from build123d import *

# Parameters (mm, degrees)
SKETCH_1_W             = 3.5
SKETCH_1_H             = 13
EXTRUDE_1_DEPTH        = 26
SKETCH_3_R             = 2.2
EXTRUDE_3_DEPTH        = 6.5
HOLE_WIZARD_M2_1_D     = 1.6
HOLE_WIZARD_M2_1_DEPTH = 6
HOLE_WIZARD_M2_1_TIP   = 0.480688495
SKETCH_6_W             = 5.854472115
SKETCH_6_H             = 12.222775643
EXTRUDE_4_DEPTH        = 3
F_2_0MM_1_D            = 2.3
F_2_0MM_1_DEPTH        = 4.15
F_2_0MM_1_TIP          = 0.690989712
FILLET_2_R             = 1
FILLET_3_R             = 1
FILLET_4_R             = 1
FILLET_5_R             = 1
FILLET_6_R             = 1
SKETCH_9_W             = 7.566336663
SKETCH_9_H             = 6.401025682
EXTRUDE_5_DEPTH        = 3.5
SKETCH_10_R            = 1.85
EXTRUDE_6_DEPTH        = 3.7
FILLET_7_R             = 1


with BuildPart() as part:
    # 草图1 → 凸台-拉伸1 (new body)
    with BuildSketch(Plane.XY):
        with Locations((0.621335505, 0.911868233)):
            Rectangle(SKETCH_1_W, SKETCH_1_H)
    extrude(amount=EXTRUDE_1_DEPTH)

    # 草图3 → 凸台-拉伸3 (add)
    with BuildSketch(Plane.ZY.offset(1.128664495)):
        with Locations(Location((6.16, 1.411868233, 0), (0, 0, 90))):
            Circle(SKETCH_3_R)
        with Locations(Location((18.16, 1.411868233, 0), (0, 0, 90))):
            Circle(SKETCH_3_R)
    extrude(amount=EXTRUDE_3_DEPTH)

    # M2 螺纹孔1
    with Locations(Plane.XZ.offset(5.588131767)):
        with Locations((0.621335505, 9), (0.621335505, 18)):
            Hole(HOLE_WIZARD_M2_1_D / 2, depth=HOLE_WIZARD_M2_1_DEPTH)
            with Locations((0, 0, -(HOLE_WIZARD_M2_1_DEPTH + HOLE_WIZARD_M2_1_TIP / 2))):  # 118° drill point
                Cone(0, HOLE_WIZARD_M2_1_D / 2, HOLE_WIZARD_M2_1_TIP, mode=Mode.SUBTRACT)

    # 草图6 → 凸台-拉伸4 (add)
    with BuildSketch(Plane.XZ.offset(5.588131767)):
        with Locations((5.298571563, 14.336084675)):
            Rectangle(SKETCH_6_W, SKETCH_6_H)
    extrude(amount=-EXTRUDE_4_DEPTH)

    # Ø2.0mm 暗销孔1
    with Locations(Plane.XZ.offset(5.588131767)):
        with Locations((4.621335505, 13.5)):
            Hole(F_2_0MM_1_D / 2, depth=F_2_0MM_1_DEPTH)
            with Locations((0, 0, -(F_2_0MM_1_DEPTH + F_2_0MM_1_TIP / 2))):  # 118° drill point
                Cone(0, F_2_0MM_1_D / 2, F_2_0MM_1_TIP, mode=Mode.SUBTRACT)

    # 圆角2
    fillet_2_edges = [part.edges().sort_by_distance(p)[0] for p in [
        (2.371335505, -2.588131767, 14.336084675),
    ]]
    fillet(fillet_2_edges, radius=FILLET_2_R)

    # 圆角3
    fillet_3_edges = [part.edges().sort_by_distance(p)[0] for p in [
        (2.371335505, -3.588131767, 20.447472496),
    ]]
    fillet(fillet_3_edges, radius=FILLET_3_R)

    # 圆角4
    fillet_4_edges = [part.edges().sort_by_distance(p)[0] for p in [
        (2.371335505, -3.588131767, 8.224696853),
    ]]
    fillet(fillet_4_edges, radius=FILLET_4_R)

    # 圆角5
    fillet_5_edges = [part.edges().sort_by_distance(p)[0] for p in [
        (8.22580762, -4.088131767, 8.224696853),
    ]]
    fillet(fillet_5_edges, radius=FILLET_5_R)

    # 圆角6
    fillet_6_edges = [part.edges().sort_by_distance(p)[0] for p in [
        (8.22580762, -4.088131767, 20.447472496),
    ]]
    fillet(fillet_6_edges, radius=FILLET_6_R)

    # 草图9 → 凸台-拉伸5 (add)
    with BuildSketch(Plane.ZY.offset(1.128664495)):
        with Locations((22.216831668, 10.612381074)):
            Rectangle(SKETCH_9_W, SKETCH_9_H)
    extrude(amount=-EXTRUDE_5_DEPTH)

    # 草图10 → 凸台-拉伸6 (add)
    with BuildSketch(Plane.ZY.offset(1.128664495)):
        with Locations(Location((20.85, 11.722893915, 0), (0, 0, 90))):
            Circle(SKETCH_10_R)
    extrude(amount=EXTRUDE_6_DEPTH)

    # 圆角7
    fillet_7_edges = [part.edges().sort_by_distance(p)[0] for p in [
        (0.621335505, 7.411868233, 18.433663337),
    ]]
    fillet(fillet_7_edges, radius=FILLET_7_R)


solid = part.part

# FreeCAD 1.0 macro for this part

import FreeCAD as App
import Part
import Sketcher
from FreeCAD import Vector


def edges_at(feature, points):
    """Names of the edges that pass closest to the given points."""
    edges = feature.Shape.Edges
    near = lambda p: min(range(len(edges)), key=lambda i: edges[i].distToShape(Part.Vertex(*p))[0])
    return sorted({f"Edge{near(p) + 1}" for p in points})

doc = App.newDocument("Part")
params = doc.addObject("Spreadsheet::Sheet", "Params")
for row, (alias, value) in enumerate([
    ("sketch1_height", "13 mm"),
    ("sketch1_width", "3.5 mm"),
    ("pad1_length", "26 mm"),
    ("sketch2_diameter", "4.4 mm"),
    ("pad2_length", "6.5 mm"),
    ("sketch3_diameter", "1.6 mm"),
    ("hole_diameter", "1.6 mm"),
    ("hole_depth", "6 mm"),
    ("pad3_length", "3 mm"),
    ("sketch5_diameter", "2.3 mm"),
    ("hole2_diameter", "2.3 mm"),
    ("hole2_depth", "4.15 mm"),
    ("fillet_radius", "1 mm"),
    ("fillet2_radius", "1 mm"),
    ("fillet3_radius", "1 mm"),
    ("fillet4_radius", "1 mm"),
    ("fillet5_radius", "1 mm"),
    ("pad4_length", "3.5 mm"),
    ("sketch7_diameter", "3.7 mm"),
    ("pad5_length", "3.7 mm"),
    ("fillet6_radius", "1 mm"),
], start=1):
    params.set(f"A{row}", alias)
    params.set(f"B{row}", "=" + value)
    params.setAlias(f"B{row}", alias)

body = doc.addObject("PartDesign::Body", "Body")

# Sketch on XY plane
sketch1 = body.newObject("Sketcher::SketchObject", "Sketch")
sketch1.AttachmentSupport = (doc.getObject("XY_Plane"), [""])
sketch1.MapMode = "FlatFace"
sketch1.addGeometry([
    Part.LineSegment(Vector(-1.128664, 7.411868, 0), Vector(-1.128664, -5.588132, 0)),
    Part.LineSegment(Vector(-1.128664, -5.588132, 0), Vector(2.371336, -5.588132, 0)),
    Part.LineSegment(Vector(2.371336, -5.588132, 0), Vector(2.371336, 7.411868, 0)),
    Part.LineSegment(Vector(2.371336, 7.411868, 0), Vector(-1.128664, 7.411868, 0)),
], False)
sketch1.addConstraint([
    Sketcher.Constraint("Coincident", 0, 2, 1, 1),
    Sketcher.Constraint("Coincident", 1, 2, 2, 1),
    Sketcher.Constraint("Coincident", 2, 2, 3, 1),
    Sketcher.Constraint("Coincident", 3, 2, 0, 1),
    Sketcher.Constraint("Vertical", 0),
    Sketcher.Constraint("Horizontal", 1),
    Sketcher.Constraint("Vertical", 2),
    Sketcher.Constraint("Horizontal", 3),
    Sketcher.Constraint("DistanceY", 0, 2, 0, 1, 13.0),
    Sketcher.Constraint("DistanceX", 1, 1, 1, 2, 3.5),
    Sketcher.Constraint("DistanceY", 0, 2, -1, 1, 5.588132),
    Sketcher.Constraint("DistanceX", 0, 2, -1, 1, 1.128664),
])
sketch1.setExpression("Constraints[8]", "Params.sketch1_height")
sketch1.setExpression("Constraints[9]", "Params.sketch1_width")
pad1 = body.newObject("PartDesign::Pad", "Pad")
pad1.Profile = sketch1
pad1.setExpression("Length", "Params.pad1_length")

# Sketch on YZ plane
sketch2 = body.newObject("Sketcher::SketchObject", "Sketch001")
sketch2.AttachmentSupport = (doc.getObject("YZ_Plane"), [""])
sketch2.MapMode = "FlatFace"
sketch2.AttachmentOffset = App.Placement(Vector(0, 0, -1.128664), App.Rotation())
sketch2.addGeometry([
    Part.Circle(Vector(1.411868, 6.16, 0), Vector(0, 0, 1), 2.2),
    Part.Circle(Vector(1.411868, 18.16, 0), Vector(0, 0, 1), 2.2),
], False)
sketch2.addConstraint([
    Sketcher.Constraint("Equal", 0, 1),
    Sketcher.Constraint("Vertical", 0, 3, 1, 3),
    Sketcher.Constraint("Diameter", 0, 4.4),
    Sketcher.Constraint("DistanceY", 0, 3, 1, 3, 12.0),
    Sketcher.Constraint("DistanceY", -1, 1, 0, 3, 6.16),
    Sketcher.Constraint("DistanceX", -1, 1, 0, 3, 1.411868),
])
sketch2.setExpression("Constraints[2]", "Params.sketch2_diameter")
pad2 = body.newObject("PartDesign::Pad", "Pad001")
pad2.Profile = sketch2
pad2.setExpression("Length", "Params.pad2_length")
pad2.Reversed = True

# Sketch on XZ plane
sketch3 = body.newObject("Sketcher::SketchObject", "Sketch002")
sketch3.AttachmentSupport = (doc.getObject("XZ_Plane"), [""])
sketch3.MapMode = "FlatFace"
sketch3.AttachmentOffset = App.Placement(Vector(0, 0, 5.588132), App.Rotation())
sketch3.addGeometry([
    Part.Circle(Vector(0.621336, 9, 0), Vector(0, 0, 1), 0.8),
    Part.Circle(Vector(0.621336, 18, 0), Vector(0, 0, 1), 0.8),
], False)
sketch3.addConstraint([
    Sketcher.Constraint("Equal", 0, 1),
    Sketcher.Constraint("Vertical", 0, 3, 1, 3),
    Sketcher.Constraint("Diameter", 0, 1.6),
    Sketcher.Constraint("DistanceY", -1, 1, 0, 3, 9.0),
    Sketcher.Constraint("DistanceY", -1, 1, 1, 3, 18.0),
    Sketcher.Constraint("DistanceX", -1, 1, 0, 3, 0.621336),
])
sketch3.setExpression("Constraints[2]", "Params.sketch3_diameter")
doc.recompute()
hole = body.newObject("PartDesign::Hole", "Hole")
hole.Profile = sketch3
hole.ThreadType = "None"
hole.setExpression("Diameter", "Params.hole_diameter")
hole.DepthType = "Dimension"
hole.setExpression("Depth", "Params.hole_depth")
hole.DrillPoint = "Angled"
hole.DrillPointAngle = 118

# Sketch on XZ plane
sketch4 = body.newObject("Sketcher::SketchObject", "Sketch003")
sketch4.AttachmentSupport = (doc.getObject("XZ_Plane"), [""])
sketch4.MapMode = "FlatFace"
sketch4.AttachmentOffset = App.Placement(Vector(0, 0, 5.588132), App.Rotation())
sketch4.addGeometry([
    Part.LineSegment(Vector(2.371336, 20.447472, 0), Vector(2.371336, 8.224697, 0)),
    Part.LineSegment(Vector(2.371336, 8.224697, 0), Vector(8.225808, 8.224697, 0)),
    Part.LineSegment(Vector(8.225808, 8.224697, 0), Vector(8.225808, 20.447472, 0)),
    Part.LineSegment(Vector(8.225808, 20.447472, 0), Vector(2.371336, 20.447472, 0)),
], False)
sketch4.addConstraint([
    Sketcher.Constraint("Coincident", 0, 2, 1, 1),
    Sketcher.Constraint("Coincident", 1, 2, 2, 1),
    Sketcher.Constraint("Coincident", 2, 2, 3, 1),
    Sketcher.Constraint("Coincident", 3, 2, 0, 1),
    Sketcher.Constraint("Vertical", 0),
    Sketcher.Constraint("Horizontal", 1),
    Sketcher.Constraint("Vertical", 2),
    Sketcher.Constraint("Horizontal", 3),
    Sketcher.Constraint("DistanceX", 1, 1, 1, 2, 5.854472),
    Sketcher.Constraint("DistanceY", 0, 2, 0, 1, 12.222776),
    Sketcher.Constraint("DistanceX", -1, 1, 0, 2, 2.371336),
    Sketcher.Constraint("DistanceY", -1, 1, 0, 2, 8.224697),
])
pad3 = body.newObject("PartDesign::Pad", "Pad002")
pad3.Profile = sketch4
pad3.setExpression("Length", "Params.pad3_length")
pad3.Reversed = True

# Sketch on XZ plane
sketch5 = body.newObject("Sketcher::SketchObject", "Sketch004")
sketch5.AttachmentSupport = (doc.getObject("XZ_Plane"), [""])
sketch5.MapMode = "FlatFace"
sketch5.AttachmentOffset = App.Placement(Vector(0, 0, 5.588132), App.Rotation())
sketch5.addGeometry(Part.Circle(Vector(4.621336, 13.5, 0), Vector(0, 0, 1), 1.15), False)
sketch5.addConstraint([
    Sketcher.Constraint("Diameter", 0, 2.3),
    Sketcher.Constraint("DistanceY", -1, 1, 0, 3, 13.5),
    Sketcher.Constraint("DistanceX", -1, 1, 0, 3, 4.621336),
])
sketch5.setExpression("Constraints[0]", "Params.sketch5_diameter")
doc.recompute()
hole2 = body.newObject("PartDesign::Hole", "Hole001")
hole2.Profile = sketch5
hole2.ThreadType = "None"
hole2.setExpression("Diameter", "Params.hole2_diameter")
hole2.DepthType = "Dimension"
hole2.setExpression("Depth", "Params.hole2_depth")
hole2.DrillPoint = "Angled"
hole2.DrillPointAngle = 118
doc.recompute()

fillet = body.newObject("PartDesign::Fillet", "Fillet")
fillet.Base = (hole2, edges_at(hole2, [(2.371, -2.588, 14.336)]))
fillet.setExpression("Radius", "Params.fillet_radius")
doc.recompute()

fillet2 = body.newObject("PartDesign::Fillet", "Fillet001")
fillet2.Base = (fillet, edges_at(fillet, [(2.371, -4.088, 20.447)]))
fillet2.setExpression("Radius", "Params.fillet2_radius")
doc.recompute()

fillet3 = body.newObject("PartDesign::Fillet", "Fillet002")
fillet3.Base = (fillet2, edges_at(fillet2, [(2.371, -3.588, 8.225)]))
fillet3.setExpression("Radius", "Params.fillet3_radius")
doc.recompute()

fillet4 = body.newObject("PartDesign::Fillet", "Fillet003")
fillet4.Base = (fillet3, edges_at(fillet3, [(8.226, -4.088, 8.225)]))
fillet4.setExpression("Radius", "Params.fillet4_radius")
doc.recompute()

fillet5 = body.newObject("PartDesign::Fillet", "Fillet004")
fillet5.Base = (fillet4, edges_at(fillet4, [(8.226, -4.088, 20.447)]))
fillet5.setExpression("Radius", "Params.fillet5_radius")

# Sketch on YZ plane
sketch6 = body.newObject("Sketcher::SketchObject", "Sketch005")
sketch6.AttachmentSupport = (doc.getObject("YZ_Plane"), [""])
sketch6.MapMode = "FlatFace"
sketch6.AttachmentOffset = App.Placement(Vector(0, 0, -1.128664), App.Rotation())
sketch6.addGeometry([
    Part.LineSegment(Vector(13.812894, 18.433663, 0), Vector(7.411868, 18.433663, 0)),
    Part.LineSegment(Vector(7.411868, 18.433663, 0), Vector(7.411868, 26, 0)),
    Part.LineSegment(Vector(7.411868, 26, 0), Vector(13.812894, 26, 0)),
    Part.LineSegment(Vector(13.812894, 26, 0), Vector(13.812894, 18.433663, 0)),
], False)
sketch6.addConstraint([
    Sketcher.Constraint("Coincident", 0, 2, 1, 1),
    Sketcher.Constraint("Coincident", 1, 2, 2, 1),
    Sketcher.Constraint("Coincident", 2, 2, 3, 1),
    Sketcher.Constraint("Coincident", 3, 2, 0, 1),
    Sketcher.Constraint("Horizontal", 0),
    Sketcher.Constraint("Vertical", 1),
    Sketcher.Constraint("Horizontal", 2),
    Sketcher.Constraint("Vertical", 3),
    Sketcher.Constraint("DistanceY", -1, 1, 1, 2, 26.0),
    Sketcher.Constraint("DistanceX", 0, 2, 0, 1, 6.401026),
    Sketcher.Constraint("DistanceY", 1, 1, 1, 2, 7.566337),
    Sketcher.Constraint("DistanceX", -1, 1, 0, 2, 7.411868),
])
pad4 = body.newObject("PartDesign::Pad", "Pad003")
pad4.Profile = sketch6
pad4.setExpression("Length", "Params.pad4_length")

# Sketch on YZ plane
sketch7 = body.newObject("Sketcher::SketchObject", "Sketch006")
sketch7.AttachmentSupport = (doc.getObject("YZ_Plane"), [""])
sketch7.MapMode = "FlatFace"
sketch7.AttachmentOffset = App.Placement(Vector(0, 0, -1.128664), App.Rotation())
sketch7.addGeometry(Part.Circle(Vector(11.722894, 20.85, 0), Vector(0, 0, 1), 1.85), False)
sketch7.addConstraint([
    Sketcher.Constraint("Diameter", 0, 3.7),
    Sketcher.Constraint("DistanceY", -1, 1, 0, 3, 20.85),
    Sketcher.Constraint("DistanceX", -1, 1, 0, 3, 11.722894),
])
sketch7.setExpression("Constraints[0]", "Params.sketch7_diameter")
pad5 = body.newObject("PartDesign::Pad", "Pad004")
pad5.Profile = sketch7
pad5.setExpression("Length", "Params.pad5_length")
pad5.Reversed = True
doc.recompute()

fillet6 = body.newObject("PartDesign::Fillet", "Fillet005")
fillet6.Base = (pad5, edges_at(pad5, [(0.621, 7.412, 18.434)]))
fillet6.setExpression("Radius", "Params.fillet6_radius")

doc.recompute()
